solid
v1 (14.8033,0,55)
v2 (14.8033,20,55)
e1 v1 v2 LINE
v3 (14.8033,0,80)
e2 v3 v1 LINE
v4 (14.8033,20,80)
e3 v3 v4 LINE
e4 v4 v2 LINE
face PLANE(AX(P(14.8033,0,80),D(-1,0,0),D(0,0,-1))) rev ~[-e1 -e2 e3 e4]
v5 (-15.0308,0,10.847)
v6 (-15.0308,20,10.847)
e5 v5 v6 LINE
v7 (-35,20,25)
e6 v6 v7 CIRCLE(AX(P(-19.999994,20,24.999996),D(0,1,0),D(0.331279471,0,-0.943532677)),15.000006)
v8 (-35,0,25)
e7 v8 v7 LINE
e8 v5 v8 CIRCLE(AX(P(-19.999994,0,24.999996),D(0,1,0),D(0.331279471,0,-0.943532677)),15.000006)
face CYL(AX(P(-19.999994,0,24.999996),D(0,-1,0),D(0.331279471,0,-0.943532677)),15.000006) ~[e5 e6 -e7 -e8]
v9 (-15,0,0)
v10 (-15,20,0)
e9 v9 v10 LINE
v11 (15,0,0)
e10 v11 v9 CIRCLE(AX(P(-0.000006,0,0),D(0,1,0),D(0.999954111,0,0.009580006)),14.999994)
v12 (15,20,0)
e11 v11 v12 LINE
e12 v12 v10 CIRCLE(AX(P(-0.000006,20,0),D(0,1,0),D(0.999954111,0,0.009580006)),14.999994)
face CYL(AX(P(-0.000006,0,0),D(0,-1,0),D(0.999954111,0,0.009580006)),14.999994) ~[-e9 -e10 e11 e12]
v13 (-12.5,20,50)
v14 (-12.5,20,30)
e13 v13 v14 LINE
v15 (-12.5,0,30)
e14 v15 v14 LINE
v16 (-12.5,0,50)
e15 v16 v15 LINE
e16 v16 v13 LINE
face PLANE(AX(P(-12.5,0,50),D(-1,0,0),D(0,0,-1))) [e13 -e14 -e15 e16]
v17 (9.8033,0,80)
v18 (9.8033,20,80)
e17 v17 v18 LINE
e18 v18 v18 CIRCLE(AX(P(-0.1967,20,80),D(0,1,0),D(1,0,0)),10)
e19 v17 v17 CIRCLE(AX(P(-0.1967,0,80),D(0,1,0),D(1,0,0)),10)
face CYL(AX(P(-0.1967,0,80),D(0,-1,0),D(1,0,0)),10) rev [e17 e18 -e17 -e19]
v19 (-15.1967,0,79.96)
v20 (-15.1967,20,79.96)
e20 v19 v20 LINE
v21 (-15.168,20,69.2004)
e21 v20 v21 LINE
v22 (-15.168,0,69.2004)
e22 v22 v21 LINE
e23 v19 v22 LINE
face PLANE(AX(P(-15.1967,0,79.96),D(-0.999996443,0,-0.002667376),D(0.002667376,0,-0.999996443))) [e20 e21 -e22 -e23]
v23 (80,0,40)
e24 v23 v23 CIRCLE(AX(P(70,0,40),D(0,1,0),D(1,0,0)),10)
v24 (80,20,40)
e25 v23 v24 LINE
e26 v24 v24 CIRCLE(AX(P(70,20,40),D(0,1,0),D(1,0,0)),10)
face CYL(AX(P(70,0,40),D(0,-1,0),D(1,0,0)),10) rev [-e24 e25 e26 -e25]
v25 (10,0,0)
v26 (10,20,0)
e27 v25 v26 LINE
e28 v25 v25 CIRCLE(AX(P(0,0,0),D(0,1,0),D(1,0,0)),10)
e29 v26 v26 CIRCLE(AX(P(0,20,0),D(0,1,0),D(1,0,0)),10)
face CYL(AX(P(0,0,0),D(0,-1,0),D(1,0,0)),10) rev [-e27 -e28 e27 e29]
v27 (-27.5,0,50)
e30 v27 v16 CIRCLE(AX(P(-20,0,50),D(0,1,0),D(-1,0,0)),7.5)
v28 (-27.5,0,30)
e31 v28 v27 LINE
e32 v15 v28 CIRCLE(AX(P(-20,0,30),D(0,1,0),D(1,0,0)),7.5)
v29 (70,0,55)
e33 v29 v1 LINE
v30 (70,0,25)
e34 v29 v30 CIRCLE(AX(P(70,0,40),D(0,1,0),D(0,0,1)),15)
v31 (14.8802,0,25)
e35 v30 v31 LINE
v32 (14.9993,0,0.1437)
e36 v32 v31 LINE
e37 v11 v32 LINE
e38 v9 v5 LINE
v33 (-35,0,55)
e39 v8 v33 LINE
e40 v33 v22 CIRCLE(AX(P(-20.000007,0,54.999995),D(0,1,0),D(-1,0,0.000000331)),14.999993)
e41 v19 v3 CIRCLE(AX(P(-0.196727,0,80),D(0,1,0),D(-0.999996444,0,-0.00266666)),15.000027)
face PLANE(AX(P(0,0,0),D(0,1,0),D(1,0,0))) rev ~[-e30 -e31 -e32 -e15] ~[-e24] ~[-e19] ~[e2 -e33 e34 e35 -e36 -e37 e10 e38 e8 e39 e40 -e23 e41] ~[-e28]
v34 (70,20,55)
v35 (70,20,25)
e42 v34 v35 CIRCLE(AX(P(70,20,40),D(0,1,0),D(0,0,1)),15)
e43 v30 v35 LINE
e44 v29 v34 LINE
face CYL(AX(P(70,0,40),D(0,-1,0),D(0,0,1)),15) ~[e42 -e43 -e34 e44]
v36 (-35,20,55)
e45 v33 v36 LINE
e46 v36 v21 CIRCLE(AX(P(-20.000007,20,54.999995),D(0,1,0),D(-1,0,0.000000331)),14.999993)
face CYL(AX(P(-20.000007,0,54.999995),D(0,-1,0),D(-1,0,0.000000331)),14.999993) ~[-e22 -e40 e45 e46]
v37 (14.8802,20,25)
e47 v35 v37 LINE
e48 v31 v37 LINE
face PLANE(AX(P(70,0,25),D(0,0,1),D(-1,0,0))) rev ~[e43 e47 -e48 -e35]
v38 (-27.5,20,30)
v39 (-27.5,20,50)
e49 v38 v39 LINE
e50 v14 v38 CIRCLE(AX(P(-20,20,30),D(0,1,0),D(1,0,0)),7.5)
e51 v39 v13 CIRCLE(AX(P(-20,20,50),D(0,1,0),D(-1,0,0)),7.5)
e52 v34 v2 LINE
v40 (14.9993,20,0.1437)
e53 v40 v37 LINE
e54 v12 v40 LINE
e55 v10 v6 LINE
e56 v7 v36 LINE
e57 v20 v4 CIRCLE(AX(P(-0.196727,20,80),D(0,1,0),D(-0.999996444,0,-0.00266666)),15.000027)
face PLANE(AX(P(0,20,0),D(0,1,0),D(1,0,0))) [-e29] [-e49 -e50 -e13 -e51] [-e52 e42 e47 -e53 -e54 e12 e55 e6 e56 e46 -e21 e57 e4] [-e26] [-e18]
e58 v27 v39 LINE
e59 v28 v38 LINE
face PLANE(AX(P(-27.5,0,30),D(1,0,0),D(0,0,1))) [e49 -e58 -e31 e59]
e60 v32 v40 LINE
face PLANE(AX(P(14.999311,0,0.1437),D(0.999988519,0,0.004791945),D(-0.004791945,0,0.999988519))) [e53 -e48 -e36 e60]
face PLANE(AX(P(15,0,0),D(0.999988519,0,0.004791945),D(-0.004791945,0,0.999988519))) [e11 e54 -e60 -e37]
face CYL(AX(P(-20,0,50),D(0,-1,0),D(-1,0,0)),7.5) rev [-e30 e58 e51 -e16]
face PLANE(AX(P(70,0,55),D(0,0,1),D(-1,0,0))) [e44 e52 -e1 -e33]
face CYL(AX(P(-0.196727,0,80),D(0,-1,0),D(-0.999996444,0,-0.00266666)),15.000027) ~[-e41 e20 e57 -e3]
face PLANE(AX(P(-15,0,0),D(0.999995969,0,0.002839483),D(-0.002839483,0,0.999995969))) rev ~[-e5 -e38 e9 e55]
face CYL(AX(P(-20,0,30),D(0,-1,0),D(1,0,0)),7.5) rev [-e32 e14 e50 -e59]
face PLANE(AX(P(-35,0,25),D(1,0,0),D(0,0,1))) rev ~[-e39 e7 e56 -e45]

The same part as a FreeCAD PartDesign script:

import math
import FreeCAD as App
import Part
import Sketcher
from FreeCAD import Vector

doc = App.newDocument("Part")
params = doc.addObject("Spreadsheet::Sheet", "Params")
for row, (alias, value) in enumerate([
    ("sketch1_diameter", "20 mm"),
    ("sketch1_radius", "15 mm"),
    ("sketch1_radius2", "7.5 mm"),
    ("sketch1_height", "20 mm"),
    ("pad1_length", "20 mm"),
], start=1):
    params.set(f"A{row}", alias)
    params.set(f"B{row}", "=" + value)
    params.setAlias(f"B{row}", alias)

body = doc.addObject("PartDesign::Body", "Body")

# Sketch on XZ plane
sketch1 = body.newObject("Sketcher::SketchObject", "Sketch")
sketch1.AttachmentSupport = (doc.getObject("XZ_Plane"), [""])
sketch1.MapMode = "FlatFace"
sketch1.addGeometry([
    Part.ArcOfCircle(Part.Circle(Vector(-20, 25, 0), Vector(0, 0, 1), 15.000012), math.radians(180), math.radians(289.346469)),  # 0
    Part.LineSegment(Vector(-35, 25, 0), Vector(-35, 55, 0)),  # 1
    Part.ArcOfCircle(Part.Circle(Vector(-20, 55, 0), Vector(0, 0, 1), 15), math.radians(71.207993), math.radians(180)),  # 2
    Part.LineSegment(Vector(-15.168, 69.2004, 0), Vector(-15.1967, 79.96, 0)),  # 3
    Part.ArcOfCircle(Part.Circle(Vector(-0.1967, 80, 0), Vector(0, 0, 1), 15.000053), math.radians(0), math.radians(180.152788)),  # 4
    Part.LineSegment(Vector(14.8033, 80, 0), Vector(14.8033, 55, 0)),  # 5
    Part.LineSegment(Vector(14.8033, 55, 0), Vector(70, 55, 0)),  # 6
    Part.ArcOfCircle(Part.Circle(Vector(70, 40, 0), Vector(0, 0, 1), 15), math.radians(-90), math.radians(90)),  # 7
    Part.LineSegment(Vector(70, 25, 0), Vector(14.8802, 25, 0)),  # 8
    Part.LineSegment(Vector(14.8802, 25, 0), Vector(15, 0, 0)),  # 9
    Part.ArcOfCircle(Part.Circle(Vector(0, 0, 0), Vector(0, 0, 1), 14.999988), math.radians(180), math.radians(360)),  # 10
    Part.LineSegment(Vector(-15, 0, 0), Vector(-15.0308, 10.847, 0)),  # 11
    Part.Circle(Vector(-0.1967, 80, 0), Vector(0, 0, 1), 10),  # 12
    Part.LineSegment(Vector(-27.5, 50, 0), Vector(-27.5, 30, 0)),  # 13
    Part.ArcOfCircle(Part.Circle(Vector(-20, 30, 0), Vector(0, 0, 1), 7.5), math.radians(180), math.radians(360)),  # 14
    Part.LineSegment(Vector(-12.5, 30, 0), Vector(-12.5, 50, 0)),  # 15
    Part.ArcOfCircle(Part.Circle(Vector(-20, 50, 0), Vector(0, 0, 1), 7.5), math.radians(0), math.radians(180)),  # 16
    Part.Circle(Vector(0, 0, 0), Vector(0, 0, 1), 10),  # 17
    Part.Circle(Vector(70, 40, 0), Vector(0, 0, 1), 10),  # 18
], False)
sketch1.addConstraint([
    Sketcher.Constraint("Tangent", 0, 1, 1, 1),
    Sketcher.Constraint("Tangent", 1, 2, 2, 2),
    Sketcher.Constraint("Coincident", 2, 1, 3, 1),
    Sketcher.Constraint("Tangent", 3, 2, 4, 2),
    Sketcher.Constraint("Tangent", 4, 1, 5, 1),
    Sketcher.Constraint("Coincident", 5, 2, 6, 1),
    Sketcher.Constraint("Tangent", 6, 2, 7, 2),
    Sketcher.Constraint("Tangent", 7, 1, 8, 1),
    Sketcher.Constraint("Coincident", 8, 2, 9, 1),
    Sketcher.Constraint("Coincident", 9, 2, 10, 2),
    Sketcher.Constraint("Coincident", 10, 1, 11, 1),
    Sketcher.Constraint("Coincident", 11, 2, 0, 2),
    Sketcher.Constraint("Tangent", 13, 2, 14, 1),
    Sketcher.Constraint("Tangent", 14, 2, 15, 1),
    Sketcher.Constraint("Tangent", 15, 2, 16, 1),
    Sketcher.Constraint("Tangent", 16, 2, 13, 1),
    Sketcher.Constraint("Vertical", 1),
    Sketcher.Constraint("Vertical", 5),
    Sketcher.Constraint("Horizontal", 6),
    Sketcher.Constraint("Horizontal", 8),
    Sketcher.Constraint("Vertical", 13),
    Sketcher.Constraint("Vertical", 15),
    Sketcher.Constraint("Coincident", 10, 3, -1, 1),
    Sketcher.Constraint("Coincident", 17, 3, -1, 1),
    Sketcher.Constraint("Coincident", 12, 3, 4, 3),
    Sketcher.Constraint("Coincident", 18, 3, 7, 3),
    Sketcher.Constraint("Equal", 0, 2),
    Sketcher.Constraint("Equal", 2, 4),
    Sketcher.Constraint("Equal", 4, 7),
    Sketcher.Constraint("Equal", 7, 10),
    Sketcher.Constraint("Equal", 12, 17),
    Sketcher.Constraint("Equal", 17, 18),
    Sketcher.Constraint("PointOnObject", 9, 2, -1),
    Sketcher.Constraint("PointOnObject", 10, 1, -1),
    Sketcher.Constraint("Parallel", 3, 11),
    Sketcher.Constraint("Horizontal", 1, 2, 5, 2),
    Sketcher.Constraint("Horizontal", 0, 1, 7, 1),
    Sketcher.Constraint("Vertical", 2, 3, 14, 3),
    Sketcher.Constraint("Diameter", 12, 20.0),
    Sketcher.Constraint("Radius", 0, 15.0),
    Sketcher.Constraint("Radius", 14, 7.5),
    Sketcher.Constraint("DistanceY", 13, 2, 13, 1, 20.0),
    Sketcher.Constraint("DistanceX", 0, 3, -1, 1, 20.0),
    Sketcher.Constraint("DistanceY", -1, 1, 4, 3, 80.0),
    Sketcher.Constraint("DistanceX", -1, 1, 7, 3, 70.0),
    Sketcher.Constraint("DistanceY", -1, 1, 7, 3, 40.0),
    Sketcher.Constraint("DistanceY", -1, 1, 14, 3, 30.0),
    Sketcher.Constraint("DistanceY", -1, 1, 3, 2, 79.96),
    Sketcher.Constraint("DistanceX", 6, 1, 6, 2, 55.1967),
    Sketcher.Constraint("DistanceX", 8, 2, 8, 1, 55.1198),
])
sketch1.setExpression("Constraints[38]", "Params.sketch1_diameter")
sketch1.setExpression("Constraints[39]", "Params.sketch1_radius")
sketch1.setExpression("Constraints[40]", "Params.sketch1_radius2")
sketch1.setExpression("Constraints[41]", "Params.sketch1_height")
pad1 = body.newObject("PartDesign::Pad", "Pad")
pad1.Profile = sketch1
pad1.setExpression("Length", "Params.pad1_length")
pad1.Reversed = True

doc.recompute()
